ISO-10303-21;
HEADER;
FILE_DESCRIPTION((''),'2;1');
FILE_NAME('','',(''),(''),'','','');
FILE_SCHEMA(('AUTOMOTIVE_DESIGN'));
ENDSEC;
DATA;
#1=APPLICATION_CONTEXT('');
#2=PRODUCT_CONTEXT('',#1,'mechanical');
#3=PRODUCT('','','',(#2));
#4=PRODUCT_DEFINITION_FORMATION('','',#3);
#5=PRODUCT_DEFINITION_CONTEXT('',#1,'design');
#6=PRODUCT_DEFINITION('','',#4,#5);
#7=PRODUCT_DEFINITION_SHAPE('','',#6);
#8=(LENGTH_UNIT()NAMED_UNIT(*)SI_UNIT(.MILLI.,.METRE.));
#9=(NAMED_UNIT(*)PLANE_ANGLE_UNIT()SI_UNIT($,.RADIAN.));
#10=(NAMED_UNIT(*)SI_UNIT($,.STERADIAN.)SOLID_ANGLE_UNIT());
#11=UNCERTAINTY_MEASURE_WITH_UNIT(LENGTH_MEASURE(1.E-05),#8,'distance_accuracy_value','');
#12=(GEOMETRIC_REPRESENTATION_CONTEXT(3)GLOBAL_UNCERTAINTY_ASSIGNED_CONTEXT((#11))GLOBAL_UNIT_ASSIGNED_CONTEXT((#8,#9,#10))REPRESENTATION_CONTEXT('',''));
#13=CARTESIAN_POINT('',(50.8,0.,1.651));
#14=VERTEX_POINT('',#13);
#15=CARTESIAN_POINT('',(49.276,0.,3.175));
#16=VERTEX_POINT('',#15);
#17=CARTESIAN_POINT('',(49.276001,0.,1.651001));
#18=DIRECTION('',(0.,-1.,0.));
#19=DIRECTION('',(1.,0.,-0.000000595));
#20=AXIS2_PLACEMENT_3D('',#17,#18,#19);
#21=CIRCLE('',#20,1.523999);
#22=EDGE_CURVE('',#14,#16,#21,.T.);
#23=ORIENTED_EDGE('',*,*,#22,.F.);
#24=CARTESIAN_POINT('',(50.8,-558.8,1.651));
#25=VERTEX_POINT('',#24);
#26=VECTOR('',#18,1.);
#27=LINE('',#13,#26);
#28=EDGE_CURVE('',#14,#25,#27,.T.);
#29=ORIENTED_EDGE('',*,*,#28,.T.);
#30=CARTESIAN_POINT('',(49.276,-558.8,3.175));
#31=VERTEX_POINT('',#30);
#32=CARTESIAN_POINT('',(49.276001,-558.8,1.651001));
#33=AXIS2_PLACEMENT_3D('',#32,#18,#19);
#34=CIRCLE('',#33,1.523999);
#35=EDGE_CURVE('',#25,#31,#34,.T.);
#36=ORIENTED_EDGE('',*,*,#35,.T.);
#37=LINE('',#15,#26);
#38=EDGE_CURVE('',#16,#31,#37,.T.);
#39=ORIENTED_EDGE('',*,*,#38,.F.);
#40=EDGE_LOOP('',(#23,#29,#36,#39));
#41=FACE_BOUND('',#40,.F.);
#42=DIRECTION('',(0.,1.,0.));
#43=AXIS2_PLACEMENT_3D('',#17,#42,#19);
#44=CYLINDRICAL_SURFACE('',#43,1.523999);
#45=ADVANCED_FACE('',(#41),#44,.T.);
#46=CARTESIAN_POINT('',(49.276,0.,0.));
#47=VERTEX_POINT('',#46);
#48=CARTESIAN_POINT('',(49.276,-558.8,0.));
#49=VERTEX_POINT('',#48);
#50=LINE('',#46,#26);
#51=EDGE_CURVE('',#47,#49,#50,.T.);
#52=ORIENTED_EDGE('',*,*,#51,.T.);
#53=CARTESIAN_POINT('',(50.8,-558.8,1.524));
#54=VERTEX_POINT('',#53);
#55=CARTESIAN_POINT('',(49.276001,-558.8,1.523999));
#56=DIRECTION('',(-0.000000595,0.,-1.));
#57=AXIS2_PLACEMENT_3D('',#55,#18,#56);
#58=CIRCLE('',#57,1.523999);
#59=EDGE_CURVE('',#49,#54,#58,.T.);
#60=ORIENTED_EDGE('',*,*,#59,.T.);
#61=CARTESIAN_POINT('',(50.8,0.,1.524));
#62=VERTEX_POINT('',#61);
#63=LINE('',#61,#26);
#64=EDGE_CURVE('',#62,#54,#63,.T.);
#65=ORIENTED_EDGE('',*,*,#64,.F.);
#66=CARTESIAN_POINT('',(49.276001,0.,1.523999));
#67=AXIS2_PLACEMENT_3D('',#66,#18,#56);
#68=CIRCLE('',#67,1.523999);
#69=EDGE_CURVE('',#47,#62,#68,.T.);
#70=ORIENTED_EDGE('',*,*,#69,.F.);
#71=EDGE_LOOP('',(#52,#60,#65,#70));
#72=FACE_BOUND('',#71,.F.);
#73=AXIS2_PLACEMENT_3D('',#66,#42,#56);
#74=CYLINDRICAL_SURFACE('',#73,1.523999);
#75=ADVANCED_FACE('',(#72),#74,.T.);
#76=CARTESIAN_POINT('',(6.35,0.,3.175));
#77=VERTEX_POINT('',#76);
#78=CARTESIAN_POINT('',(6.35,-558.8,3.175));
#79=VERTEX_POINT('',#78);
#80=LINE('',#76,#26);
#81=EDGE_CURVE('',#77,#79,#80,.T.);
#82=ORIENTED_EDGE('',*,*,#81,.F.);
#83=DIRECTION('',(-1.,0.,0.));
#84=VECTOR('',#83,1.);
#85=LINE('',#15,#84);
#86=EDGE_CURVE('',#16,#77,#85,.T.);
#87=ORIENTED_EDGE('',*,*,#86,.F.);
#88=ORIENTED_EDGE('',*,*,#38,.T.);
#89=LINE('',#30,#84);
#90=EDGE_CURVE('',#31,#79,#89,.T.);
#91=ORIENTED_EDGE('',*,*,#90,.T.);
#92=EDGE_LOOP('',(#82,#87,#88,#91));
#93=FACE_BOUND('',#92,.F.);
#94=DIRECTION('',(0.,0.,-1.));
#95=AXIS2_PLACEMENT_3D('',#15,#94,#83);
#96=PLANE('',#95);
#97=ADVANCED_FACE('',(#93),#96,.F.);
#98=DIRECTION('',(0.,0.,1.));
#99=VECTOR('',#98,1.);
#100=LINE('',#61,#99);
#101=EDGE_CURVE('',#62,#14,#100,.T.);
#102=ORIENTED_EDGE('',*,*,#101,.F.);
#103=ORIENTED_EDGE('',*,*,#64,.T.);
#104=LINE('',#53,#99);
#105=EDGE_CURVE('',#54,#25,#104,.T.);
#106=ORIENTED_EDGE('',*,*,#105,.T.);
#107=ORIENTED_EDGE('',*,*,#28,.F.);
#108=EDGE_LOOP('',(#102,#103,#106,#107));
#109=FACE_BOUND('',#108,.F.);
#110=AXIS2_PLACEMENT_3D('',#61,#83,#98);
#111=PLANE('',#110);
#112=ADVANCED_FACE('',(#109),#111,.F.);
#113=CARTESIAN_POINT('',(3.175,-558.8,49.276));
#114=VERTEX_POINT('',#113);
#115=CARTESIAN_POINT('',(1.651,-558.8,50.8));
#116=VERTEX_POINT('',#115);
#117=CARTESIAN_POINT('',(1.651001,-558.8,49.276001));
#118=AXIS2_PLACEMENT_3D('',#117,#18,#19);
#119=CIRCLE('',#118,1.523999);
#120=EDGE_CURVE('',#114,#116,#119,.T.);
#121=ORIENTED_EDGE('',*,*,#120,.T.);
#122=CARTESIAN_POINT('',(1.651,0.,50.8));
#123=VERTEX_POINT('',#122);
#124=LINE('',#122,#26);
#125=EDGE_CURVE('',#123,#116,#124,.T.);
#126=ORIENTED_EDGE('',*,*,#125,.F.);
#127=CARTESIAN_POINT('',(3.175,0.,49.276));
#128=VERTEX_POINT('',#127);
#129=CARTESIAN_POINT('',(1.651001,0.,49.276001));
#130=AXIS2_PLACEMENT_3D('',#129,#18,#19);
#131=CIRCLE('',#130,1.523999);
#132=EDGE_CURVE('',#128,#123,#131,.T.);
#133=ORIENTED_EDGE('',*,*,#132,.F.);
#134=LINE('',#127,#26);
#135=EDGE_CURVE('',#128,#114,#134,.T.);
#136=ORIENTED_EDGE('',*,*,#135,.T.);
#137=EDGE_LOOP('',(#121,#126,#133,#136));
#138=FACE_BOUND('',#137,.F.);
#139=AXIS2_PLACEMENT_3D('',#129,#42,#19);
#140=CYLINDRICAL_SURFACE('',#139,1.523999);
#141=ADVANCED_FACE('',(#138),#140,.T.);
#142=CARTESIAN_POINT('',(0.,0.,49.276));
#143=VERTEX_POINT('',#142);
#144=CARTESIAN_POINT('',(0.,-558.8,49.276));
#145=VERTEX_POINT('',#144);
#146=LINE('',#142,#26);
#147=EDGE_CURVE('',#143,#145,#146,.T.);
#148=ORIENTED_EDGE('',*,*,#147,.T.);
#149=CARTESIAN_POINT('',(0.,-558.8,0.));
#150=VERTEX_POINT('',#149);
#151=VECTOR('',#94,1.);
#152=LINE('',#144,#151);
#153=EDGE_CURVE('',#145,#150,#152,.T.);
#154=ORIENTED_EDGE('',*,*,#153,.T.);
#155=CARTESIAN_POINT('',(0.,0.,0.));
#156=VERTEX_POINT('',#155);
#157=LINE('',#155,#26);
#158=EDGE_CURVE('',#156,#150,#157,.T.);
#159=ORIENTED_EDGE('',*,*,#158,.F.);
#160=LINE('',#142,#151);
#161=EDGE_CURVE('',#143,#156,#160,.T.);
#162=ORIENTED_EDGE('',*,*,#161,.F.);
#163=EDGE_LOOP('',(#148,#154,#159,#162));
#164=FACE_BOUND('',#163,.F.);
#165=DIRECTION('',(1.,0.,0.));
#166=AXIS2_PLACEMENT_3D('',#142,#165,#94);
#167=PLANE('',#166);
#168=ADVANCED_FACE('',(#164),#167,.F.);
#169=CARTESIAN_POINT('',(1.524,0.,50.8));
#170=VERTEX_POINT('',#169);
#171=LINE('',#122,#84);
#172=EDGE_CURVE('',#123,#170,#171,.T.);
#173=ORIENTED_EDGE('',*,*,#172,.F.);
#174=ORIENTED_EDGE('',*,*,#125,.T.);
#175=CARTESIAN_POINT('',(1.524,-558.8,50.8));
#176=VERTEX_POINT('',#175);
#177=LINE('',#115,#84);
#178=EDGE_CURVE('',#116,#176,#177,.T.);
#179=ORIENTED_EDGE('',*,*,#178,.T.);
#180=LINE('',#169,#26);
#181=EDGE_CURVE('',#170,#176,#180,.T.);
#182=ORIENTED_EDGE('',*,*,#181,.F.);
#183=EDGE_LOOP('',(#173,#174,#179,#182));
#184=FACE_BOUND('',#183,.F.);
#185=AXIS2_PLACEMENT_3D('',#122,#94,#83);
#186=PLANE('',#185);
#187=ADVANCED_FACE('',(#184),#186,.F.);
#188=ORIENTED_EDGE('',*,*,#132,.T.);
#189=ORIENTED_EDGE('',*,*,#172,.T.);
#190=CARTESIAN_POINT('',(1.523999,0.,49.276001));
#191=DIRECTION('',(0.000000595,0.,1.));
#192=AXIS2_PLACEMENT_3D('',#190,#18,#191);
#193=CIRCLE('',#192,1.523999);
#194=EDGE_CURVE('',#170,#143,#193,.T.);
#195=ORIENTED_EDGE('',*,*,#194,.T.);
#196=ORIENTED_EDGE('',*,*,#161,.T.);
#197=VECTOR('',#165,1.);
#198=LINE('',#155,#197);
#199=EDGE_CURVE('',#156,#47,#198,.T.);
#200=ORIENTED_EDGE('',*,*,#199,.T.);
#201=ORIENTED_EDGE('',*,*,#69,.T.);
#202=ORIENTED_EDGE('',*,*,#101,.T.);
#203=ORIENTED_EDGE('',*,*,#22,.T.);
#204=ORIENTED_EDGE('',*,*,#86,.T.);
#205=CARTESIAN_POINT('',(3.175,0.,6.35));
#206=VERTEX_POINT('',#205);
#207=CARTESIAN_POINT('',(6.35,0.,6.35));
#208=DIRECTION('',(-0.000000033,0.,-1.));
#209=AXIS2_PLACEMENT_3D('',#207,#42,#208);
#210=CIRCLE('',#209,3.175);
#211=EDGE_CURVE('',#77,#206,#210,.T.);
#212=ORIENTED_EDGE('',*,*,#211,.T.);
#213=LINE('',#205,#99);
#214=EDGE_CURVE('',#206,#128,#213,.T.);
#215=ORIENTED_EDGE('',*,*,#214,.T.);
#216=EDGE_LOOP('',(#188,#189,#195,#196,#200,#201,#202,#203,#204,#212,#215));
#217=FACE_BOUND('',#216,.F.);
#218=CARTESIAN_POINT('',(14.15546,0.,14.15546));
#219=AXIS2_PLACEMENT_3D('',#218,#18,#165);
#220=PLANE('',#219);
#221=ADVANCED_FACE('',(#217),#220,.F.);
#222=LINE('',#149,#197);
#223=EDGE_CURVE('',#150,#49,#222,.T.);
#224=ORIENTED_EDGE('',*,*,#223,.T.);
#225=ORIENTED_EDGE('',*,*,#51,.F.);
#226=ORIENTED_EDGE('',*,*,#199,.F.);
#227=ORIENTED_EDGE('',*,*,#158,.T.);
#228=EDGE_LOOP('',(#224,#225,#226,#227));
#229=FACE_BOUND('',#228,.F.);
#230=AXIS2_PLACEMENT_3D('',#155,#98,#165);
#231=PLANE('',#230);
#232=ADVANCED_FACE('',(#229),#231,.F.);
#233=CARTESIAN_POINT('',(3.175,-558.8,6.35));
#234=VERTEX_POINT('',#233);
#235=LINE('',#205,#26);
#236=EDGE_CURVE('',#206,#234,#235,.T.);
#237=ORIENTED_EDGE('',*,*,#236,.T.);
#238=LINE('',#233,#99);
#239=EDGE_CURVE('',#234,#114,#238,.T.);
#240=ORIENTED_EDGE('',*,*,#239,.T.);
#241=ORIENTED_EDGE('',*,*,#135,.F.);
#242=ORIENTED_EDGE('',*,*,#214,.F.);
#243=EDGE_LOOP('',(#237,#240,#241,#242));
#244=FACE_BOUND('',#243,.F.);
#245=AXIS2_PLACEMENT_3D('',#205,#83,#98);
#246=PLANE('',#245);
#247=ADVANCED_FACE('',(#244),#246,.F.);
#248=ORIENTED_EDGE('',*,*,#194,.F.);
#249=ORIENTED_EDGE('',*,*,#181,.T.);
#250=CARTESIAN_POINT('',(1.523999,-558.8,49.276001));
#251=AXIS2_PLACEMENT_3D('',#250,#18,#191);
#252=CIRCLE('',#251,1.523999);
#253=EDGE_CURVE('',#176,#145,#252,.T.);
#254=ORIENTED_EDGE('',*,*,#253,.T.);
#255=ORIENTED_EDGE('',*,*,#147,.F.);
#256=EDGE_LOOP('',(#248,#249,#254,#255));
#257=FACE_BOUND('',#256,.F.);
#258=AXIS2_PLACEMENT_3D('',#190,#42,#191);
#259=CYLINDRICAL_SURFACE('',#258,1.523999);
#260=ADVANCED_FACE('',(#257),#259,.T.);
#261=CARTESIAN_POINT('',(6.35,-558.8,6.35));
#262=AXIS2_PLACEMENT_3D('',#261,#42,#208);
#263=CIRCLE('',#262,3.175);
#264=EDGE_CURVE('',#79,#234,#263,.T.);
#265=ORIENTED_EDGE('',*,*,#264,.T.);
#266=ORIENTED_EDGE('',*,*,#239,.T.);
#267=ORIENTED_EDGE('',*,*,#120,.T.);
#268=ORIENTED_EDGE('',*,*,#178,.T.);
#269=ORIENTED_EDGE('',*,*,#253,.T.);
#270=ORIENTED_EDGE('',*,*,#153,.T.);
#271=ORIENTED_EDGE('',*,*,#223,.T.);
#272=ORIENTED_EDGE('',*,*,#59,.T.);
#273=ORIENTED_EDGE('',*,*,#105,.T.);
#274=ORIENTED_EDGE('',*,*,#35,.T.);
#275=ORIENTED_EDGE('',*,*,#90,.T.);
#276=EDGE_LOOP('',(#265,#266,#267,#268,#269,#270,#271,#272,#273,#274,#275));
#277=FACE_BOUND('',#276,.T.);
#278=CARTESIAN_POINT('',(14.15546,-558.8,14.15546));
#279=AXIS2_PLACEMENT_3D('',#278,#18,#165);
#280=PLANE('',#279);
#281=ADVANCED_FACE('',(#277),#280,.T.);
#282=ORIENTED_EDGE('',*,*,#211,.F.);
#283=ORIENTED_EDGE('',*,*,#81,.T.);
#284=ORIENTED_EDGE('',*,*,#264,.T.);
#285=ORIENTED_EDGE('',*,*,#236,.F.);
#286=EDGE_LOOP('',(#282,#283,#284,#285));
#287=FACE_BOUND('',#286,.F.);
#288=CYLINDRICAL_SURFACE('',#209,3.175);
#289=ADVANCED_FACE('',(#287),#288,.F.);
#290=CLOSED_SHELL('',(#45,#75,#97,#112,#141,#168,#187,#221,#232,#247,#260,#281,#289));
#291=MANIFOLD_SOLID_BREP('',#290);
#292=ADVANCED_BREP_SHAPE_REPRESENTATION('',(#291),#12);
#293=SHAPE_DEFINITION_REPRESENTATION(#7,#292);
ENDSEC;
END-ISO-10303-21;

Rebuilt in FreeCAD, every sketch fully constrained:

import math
import FreeCAD as App
import Part
import Sketcher
Q = App.Units.Quantity

doc = App.newDocument("Part")
body = doc.addObject("PartDesign::Body", "Body")

sketch1 = body.newObject("Sketcher::SketchObject", "Sketch")
sketch1.AttachmentSupport = (doc.getObject("XZ_Plane"), [""])
sketch1.MapMode = "FlatFace"
sketch1.addGeometry([
    Part.LineSegment(App.Vector(0, 49.28, 0), App.Vector(0, 0, 0)),
    Part.LineSegment(App.Vector(0, 0, 0), App.Vector(49.28, 0, 0)),
    Part.ArcOfCircle(Part.Circle(App.Vector(49.28, 1.52, 0), App.Vector(0, 0, 1), 1.52), math.radians(-90), math.radians(0)),
    Part.LineSegment(App.Vector(50.8, 1.52, 0), App.Vector(50.8, 1.65, 0)),
    Part.ArcOfCircle(Part.Circle(App.Vector(49.28, 1.65, 0), App.Vector(0, 0, 1), 1.52), math.radians(0), math.radians(90)),
    Part.LineSegment(App.Vector(49.28, 3.17, 0), App.Vector(6.35, 3.17, 0)),
    Part.ArcOfCircle(Part.Circle(App.Vector(6.35, 6.35, 0), App.Vector(0, 0, 1), 3.18), math.radians(-180), math.radians(-90)),
    Part.LineSegment(App.Vector(3.17, 6.35, 0), App.Vector(3.17, 49.28, 0)),
    Part.ArcOfCircle(Part.Circle(App.Vector(1.65, 49.28, 0), App.Vector(0, 0, 1), 1.52), math.radians(0), math.radians(90)),
    Part.LineSegment(App.Vector(1.65, 50.8, 0), App.Vector(1.52, 50.8, 0)),
    Part.ArcOfCircle(Part.Circle(App.Vector(1.52, 49.28, 0), App.Vector(0, 0, 1), 1.52), math.radians(90), math.radians(180)),
], False)
sketch1.addConstraint([
    Sketcher.Constraint("Coincident", 0, 2, 1, 1),
    Sketcher.Constraint("Tangent", 1, 2, 2, 1),
    Sketcher.Constraint("Tangent", 2, 2, 3, 1),
    Sketcher.Constraint("Tangent", 3, 2, 4, 1),
    Sketcher.Constraint("Tangent", 4, 2, 5, 1),
    Sketcher.Constraint("Tangent", 5, 2, 6, 2),
    Sketcher.Constraint("Tangent", 6, 1, 7, 1),
    Sketcher.Constraint("Tangent", 7, 2, 8, 1),
    Sketcher.Constraint("Tangent", 8, 2, 9, 1),
    Sketcher.Constraint("Tangent", 9, 2, 10, 1),
    Sketcher.Constraint("Tangent", 10, 2, 0, 1),
    Sketcher.Constraint("Vertical", 0),
    Sketcher.Constraint("Horizontal", 1),
    Sketcher.Constraint("Vertical", 3),
    Sketcher.Constraint("Horizontal", 5),
    Sketcher.Constraint("Vertical", 7),
    Sketcher.Constraint("Horizontal", 9),
    Sketcher.Constraint("Coincident", 0, 2, -1, 1),
    Sketcher.Constraint("Equal", 2, 4),
    Sketcher.Constraint("Equal", 4, 8),
    Sketcher.Constraint("Equal", 8, 10),
    Sketcher.Constraint("Equal", 1, 0),
    Sketcher.Constraint("Equal", 9, 3),
    Sketcher.Constraint("Radius", 2, Q("0.06 in")),
    Sketcher.Constraint("DistanceX", -1, 1, 2, 2, Q("2 in")),
    Sketcher.Constraint("Radius", 6, Q("0.125 in")),
    Sketcher.Constraint("DistanceX", 5, 2, 5, 1, Q("1.69 in")),
])
pad1 = body.newObject("PartDesign::Pad", "Pad")
pad1.Profile = sketch1
pad1.Length = Q("22 in")

doc.recompute()
